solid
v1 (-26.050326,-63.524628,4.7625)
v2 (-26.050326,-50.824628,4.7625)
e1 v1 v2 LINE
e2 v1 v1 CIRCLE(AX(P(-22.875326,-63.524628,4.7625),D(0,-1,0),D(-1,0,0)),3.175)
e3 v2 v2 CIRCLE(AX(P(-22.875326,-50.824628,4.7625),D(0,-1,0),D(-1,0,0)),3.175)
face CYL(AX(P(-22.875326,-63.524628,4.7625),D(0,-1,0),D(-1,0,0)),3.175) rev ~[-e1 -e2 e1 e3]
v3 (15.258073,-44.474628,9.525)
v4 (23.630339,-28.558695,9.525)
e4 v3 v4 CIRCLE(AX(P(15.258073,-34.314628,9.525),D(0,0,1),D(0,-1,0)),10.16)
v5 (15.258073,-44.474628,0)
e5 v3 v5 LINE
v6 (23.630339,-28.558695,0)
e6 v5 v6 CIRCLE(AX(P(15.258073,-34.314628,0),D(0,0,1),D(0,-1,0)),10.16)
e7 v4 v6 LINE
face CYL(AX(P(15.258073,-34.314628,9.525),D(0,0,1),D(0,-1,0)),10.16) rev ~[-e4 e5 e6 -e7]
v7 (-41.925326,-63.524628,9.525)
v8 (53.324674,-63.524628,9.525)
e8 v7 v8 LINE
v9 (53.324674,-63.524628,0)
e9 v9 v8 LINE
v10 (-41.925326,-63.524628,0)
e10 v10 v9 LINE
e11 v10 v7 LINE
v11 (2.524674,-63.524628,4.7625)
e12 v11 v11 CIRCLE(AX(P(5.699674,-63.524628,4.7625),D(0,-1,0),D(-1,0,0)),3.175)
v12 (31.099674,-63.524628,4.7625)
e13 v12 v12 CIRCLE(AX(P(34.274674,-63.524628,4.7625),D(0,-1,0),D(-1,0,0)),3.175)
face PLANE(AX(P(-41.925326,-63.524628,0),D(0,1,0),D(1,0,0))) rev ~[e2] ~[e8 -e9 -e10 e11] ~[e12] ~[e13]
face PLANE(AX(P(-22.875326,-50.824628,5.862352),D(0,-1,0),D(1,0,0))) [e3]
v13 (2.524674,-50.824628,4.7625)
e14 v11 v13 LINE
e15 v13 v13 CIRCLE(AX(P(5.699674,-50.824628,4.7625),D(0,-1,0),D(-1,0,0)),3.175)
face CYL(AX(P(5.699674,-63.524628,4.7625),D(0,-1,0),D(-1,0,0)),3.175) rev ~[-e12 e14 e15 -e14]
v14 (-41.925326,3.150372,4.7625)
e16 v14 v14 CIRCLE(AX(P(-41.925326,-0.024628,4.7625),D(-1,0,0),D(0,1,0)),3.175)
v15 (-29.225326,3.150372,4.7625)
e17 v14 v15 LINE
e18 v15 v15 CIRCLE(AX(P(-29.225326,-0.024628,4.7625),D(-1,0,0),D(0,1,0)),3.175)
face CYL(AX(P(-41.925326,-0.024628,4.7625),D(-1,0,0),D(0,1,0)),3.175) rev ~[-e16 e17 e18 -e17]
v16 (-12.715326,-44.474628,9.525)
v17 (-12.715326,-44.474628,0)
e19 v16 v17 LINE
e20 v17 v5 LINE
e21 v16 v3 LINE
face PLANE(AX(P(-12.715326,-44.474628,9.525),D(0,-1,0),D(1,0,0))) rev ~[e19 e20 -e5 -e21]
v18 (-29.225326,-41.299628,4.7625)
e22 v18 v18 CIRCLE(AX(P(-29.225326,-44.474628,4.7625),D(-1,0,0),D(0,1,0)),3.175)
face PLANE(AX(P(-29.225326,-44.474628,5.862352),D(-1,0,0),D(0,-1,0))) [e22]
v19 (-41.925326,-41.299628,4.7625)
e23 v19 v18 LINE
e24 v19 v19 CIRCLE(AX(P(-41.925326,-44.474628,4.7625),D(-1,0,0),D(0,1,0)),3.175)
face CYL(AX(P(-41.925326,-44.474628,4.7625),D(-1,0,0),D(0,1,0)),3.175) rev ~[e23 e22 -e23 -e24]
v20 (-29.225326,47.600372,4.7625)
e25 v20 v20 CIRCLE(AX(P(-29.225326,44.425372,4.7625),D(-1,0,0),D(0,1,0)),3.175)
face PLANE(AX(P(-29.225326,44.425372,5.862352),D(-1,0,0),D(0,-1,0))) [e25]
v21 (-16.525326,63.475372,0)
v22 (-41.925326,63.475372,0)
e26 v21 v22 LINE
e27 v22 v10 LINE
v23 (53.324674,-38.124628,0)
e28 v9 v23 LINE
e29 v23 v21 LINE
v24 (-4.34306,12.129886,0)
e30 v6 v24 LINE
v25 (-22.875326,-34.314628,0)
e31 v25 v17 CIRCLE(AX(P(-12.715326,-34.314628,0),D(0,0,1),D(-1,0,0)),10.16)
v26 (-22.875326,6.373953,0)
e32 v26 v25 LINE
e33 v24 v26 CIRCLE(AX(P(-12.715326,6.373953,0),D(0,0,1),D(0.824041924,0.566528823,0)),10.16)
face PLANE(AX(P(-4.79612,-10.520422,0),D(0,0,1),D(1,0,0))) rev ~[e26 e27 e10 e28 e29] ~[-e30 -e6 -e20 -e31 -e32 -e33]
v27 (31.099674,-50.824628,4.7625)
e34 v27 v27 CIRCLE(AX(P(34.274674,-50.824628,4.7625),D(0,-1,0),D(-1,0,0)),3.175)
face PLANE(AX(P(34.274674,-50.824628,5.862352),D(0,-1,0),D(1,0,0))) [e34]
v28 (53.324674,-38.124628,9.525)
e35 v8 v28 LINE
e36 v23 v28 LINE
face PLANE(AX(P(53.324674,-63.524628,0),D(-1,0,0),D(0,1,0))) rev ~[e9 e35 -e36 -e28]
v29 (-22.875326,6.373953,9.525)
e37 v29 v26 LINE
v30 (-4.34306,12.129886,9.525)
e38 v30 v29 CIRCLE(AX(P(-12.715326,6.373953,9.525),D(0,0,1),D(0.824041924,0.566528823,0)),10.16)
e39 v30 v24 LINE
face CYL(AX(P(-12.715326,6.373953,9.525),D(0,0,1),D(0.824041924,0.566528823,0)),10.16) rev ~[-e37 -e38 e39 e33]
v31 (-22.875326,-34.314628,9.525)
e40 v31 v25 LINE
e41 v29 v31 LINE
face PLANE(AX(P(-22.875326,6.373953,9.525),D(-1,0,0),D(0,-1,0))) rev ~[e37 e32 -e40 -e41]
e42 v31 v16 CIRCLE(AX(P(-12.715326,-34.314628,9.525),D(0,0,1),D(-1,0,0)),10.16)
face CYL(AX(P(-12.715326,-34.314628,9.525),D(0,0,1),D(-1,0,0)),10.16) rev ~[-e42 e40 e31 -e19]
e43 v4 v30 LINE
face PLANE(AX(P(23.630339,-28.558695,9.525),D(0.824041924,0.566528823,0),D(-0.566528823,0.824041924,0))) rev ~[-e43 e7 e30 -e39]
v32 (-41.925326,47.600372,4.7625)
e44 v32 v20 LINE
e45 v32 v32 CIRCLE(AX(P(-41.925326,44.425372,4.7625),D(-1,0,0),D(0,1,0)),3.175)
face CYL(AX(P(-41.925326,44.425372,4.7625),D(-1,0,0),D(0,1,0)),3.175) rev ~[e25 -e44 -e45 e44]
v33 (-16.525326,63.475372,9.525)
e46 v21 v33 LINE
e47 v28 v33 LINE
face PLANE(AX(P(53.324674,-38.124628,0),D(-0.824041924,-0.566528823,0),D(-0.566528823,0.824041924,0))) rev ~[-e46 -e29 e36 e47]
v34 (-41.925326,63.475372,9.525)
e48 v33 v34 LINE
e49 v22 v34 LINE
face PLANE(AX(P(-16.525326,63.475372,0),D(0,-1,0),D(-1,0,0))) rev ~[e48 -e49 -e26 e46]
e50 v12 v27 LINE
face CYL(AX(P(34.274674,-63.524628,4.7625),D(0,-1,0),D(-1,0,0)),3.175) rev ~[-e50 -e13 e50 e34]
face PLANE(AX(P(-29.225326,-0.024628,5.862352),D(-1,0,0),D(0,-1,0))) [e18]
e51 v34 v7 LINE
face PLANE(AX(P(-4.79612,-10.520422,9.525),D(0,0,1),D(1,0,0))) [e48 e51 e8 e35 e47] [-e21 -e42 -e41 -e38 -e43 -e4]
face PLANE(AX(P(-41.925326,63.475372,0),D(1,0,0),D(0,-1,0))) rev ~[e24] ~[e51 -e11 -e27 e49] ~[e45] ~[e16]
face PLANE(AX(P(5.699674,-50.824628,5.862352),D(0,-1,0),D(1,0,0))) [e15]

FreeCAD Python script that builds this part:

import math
import FreeCAD as App
import Part
import Sketcher
Q = App.Units.Quantity


def add_polygon(sketch, points):
    """Adds a closed chain of lines whose ends are joined by coincident constraints."""
    first, n = sketch.GeometryCount, len(points)
    for a, b in zip(points, points[1:] + points[:1]):
        sketch.addGeometry(Part.LineSegment(App.Vector(*a, 0), App.Vector(*b, 0)), False)
    for i in range(n):
        sketch.addConstraint(Sketcher.Constraint("Coincident", first + i, 2, first + (i + 1) % n, 1))

doc = App.newDocument("Part")
body = doc.addObject("PartDesign::Body", "Body")

sketch1 = body.newObject("Sketcher::SketchObject", "Sketch")
sketch1.AttachmentSupport = (doc.getObject("XY_Plane"), [""])
sketch1.MapMode = "FlatFace"
add_polygon(sketch1, [(-16.525326, 63.475372), (-41.925326, 63.475372), (-41.925326, -63.524628), (53.324674, -63.524628), (53.324674, -38.124628)])
sketch1.addConstraint([
    Sketcher.Constraint("Horizontal", 0),
    Sketcher.Constraint("Vertical", 1),
    Sketcher.Constraint("Horizontal", 2),
    Sketcher.Constraint("Vertical", 3),
    Sketcher.Constraint("Equal", 0, 3),
    Sketcher.Constraint("DistanceX", 0, 2, 0, 1, Q("1 in")),
    Sketcher.Constraint("DistanceY", 1, 2, 1, 1, Q("5 in")),
    Sketcher.Constraint("DistanceX", 2, 1, 2, 2, Q("3.75 in")),
    Sketcher.Constraint("DistanceX", 0, 2, -1, 1, 41.925326),
    Sketcher.Constraint("DistanceY", -1, 1, 0, 2, 63.475372),
])
pad1 = body.newObject("PartDesign::Pad", "Pad")
pad1.Profile = sketch1
pad1.Length = Q("0.375 in")

sketch2 = body.newObject("Sketcher::SketchObject", "Sketch001")
sketch2.AttachmentSupport = (doc.getObject("XY_Plane"), [""])
sketch2.MapMode = "FlatFace"
sketch2.AttachmentOffset = App.Placement(App.Vector(0, 0, 0.375 * 25.4), App.Rotation())
sketch2.addGeometry([
    Part.ArcOfCircle(Part.Circle(App.Vector(-12.715326, 6.373953, 0), App.Vector(0, 0, 1), 10.16), math.radians(34.508523), math.radians(180)),
    Part.LineSegment(App.Vector(-22.875326, 6.373953, 0), App.Vector(-22.875326, -34.314628, 0)),
    Part.ArcOfCircle(Part.Circle(App.Vector(-12.715326, -34.314628, 0), App.Vector(0, 0, 1), 10.16), math.radians(180), math.radians(270)),
    Part.LineSegment(App.Vector(-12.715326, -44.474628, 0), App.Vector(15.258073, -44.474628, 0)),
    Part.ArcOfCircle(Part.Circle(App.Vector(15.258073, -34.314628, 0), App.Vector(0, 0, 1), 10.16), math.radians(-90), math.radians(34.508523)),
    Part.LineSegment(App.Vector(23.630339, -28.558695, 0), App.Vector(-4.34306, 12.129886, 0)),
], False)
sketch2.addConstraint([
    Sketcher.Constraint("Tangent", 0, 2, 1, 1),
    Sketcher.Constraint("Tangent", 1, 2, 2, 1),
    Sketcher.Constraint("Tangent", 2, 2, 3, 1),
    Sketcher.Constraint("Tangent", 3, 2, 4, 1),
    Sketcher.Constraint("Tangent", 4, 2, 5, 1),
    Sketcher.Constraint("Tangent", 5, 2, 0, 1),
    Sketcher.Constraint("Vertical", 1),
    Sketcher.Constraint("Horizontal", 3),
    Sketcher.Constraint("Equal", 0, 2),
    Sketcher.Constraint("Equal", 2, 4),
    Sketcher.Constraint("Radius", 0, Q("0.4 in")),
    Sketcher.Constraint("DistanceX", 3, 1, 3, 2, 27.973399),
    Sketcher.Constraint("DistanceY", 1, 2, 1, 1, 40.688581),
    Sketcher.Constraint("DistanceX", -1, 1, 4, 2, 23.630339),
    Sketcher.Constraint("DistanceY", -1, 1, 0, 3, 6.373953),
])
pocket1 = body.newObject("PartDesign::Pocket", "Pocket")
pocket1.Profile = sketch2
pocket1.Type = "ThroughAll"

sketch3 = body.newObject("Sketcher::SketchObject", "Sketch002")
sketch3.AttachmentSupport = (doc.getObject("YZ_Plane"), [""])
sketch3.MapMode = "FlatFace"
sketch3.AttachmentOffset = App.Placement(App.Vector(0, 0, -41.925326), App.Rotation())
sketch3.addGeometry([
    Part.Circle(App.Vector(44.425372, 4.7625, 0), App.Vector(0, 0, 1), 3.175),
    Part.Circle(App.Vector(-44.474628, 4.7625, 0), App.Vector(0, 0, 1), 3.175),
    Part.Circle(App.Vector(-0.024628, 4.7625, 0), App.Vector(0, 0, 1), 3.175),
], False)
sketch3.addConstraint([
    Sketcher.Constraint("Equal", 0, 1),
    Sketcher.Constraint("Equal", 1, 2),
    Sketcher.Constraint("Horizontal", 0, 3, 1, 3),
    Sketcher.Constraint("Horizontal", 1, 3, 2, 3),
    Sketcher.Constraint("Diameter", 0, Q("0.25 in")),
    Sketcher.Constraint("DistanceX", 1, 3, 0, 3, Q("3.5 in")),
    Sketcher.Constraint("DistanceX", 2, 3, 0, 3, Q("1.75 in")),
    Sketcher.Constraint("DistanceY", -1, 1, 0, 3, Q("0.1875 in")),
    Sketcher.Constraint("DistanceX", -1, 1, 0, 3, 44.425372),
])
pocket2 = body.newObject("PartDesign::Pocket", "Pocket001")
pocket2.Profile = sketch3
pocket2.Length = Q("0.5 in")
pocket2.Reversed = True

sketch4 = body.newObject("Sketcher::SketchObject", "Sketch003")
sketch4.AttachmentSupport = (doc.getObject("XZ_Plane"), [""])
sketch4.MapMode = "FlatFace"
sketch4.AttachmentOffset = App.Placement(App.Vector(0, 0, 63.524628), App.Rotation())
sketch4.addGeometry([
    Part.Circle(App.Vector(-22.875326, 4.7625, 0), App.Vector(0, 0, 1), 3.175),
    Part.Circle(App.Vector(34.274674, 4.7625, 0), App.Vector(0, 0, 1), 3.175),
    Part.Circle(App.Vector(5.699674, 4.7625, 0), App.Vector(0, 0, 1), 3.175),
], False)
sketch4.addConstraint([
    Sketcher.Constraint("Equal", 0, 1),
    Sketcher.Constraint("Equal", 1, 2),
    Sketcher.Constraint("Horizontal", 0, 3, 1, 3),
    Sketcher.Constraint("Horizontal", 1, 3, 2, 3),
    Sketcher.Constraint("Diameter", 0, Q("0.25 in")),
    Sketcher.Constraint("DistanceX", 0, 3, 1, 3, Q("2.25 in")),
    Sketcher.Constraint("DistanceY", -1, 1, 0, 3, Q("0.1875 in")),
    Sketcher.Constraint("DistanceX", 0, 3, 2, 3, Q("1.125 in")),
    Sketcher.Constraint("DistanceX", 0, 3, -1, 1, 22.875326),
])
pocket3 = body.newObject("PartDesign::Pocket", "Pocket002")
pocket3.Profile = sketch4
pocket3.Length = Q("0.5 in")

sketch5 = body.newObject("Sketcher::SketchObject", "Sketch004")
sketch5.AttachmentSupport = (doc.getObject("XZ_Plane"), [""])
sketch5.MapMode = "FlatFace"
sketch5.AttachmentOffset = App.Placement(App.Vector(0, 0, 63.524628), App.Rotation())
sketch5.addGeometry([
    Part.Circle(App.Vector(-22.875326, 4.7625, 0), App.Vector(0, 0, 1), 3.175),
    Part.Circle(App.Vector(34.274674, 4.7625, 0), App.Vector(0, 0, 1), 3.175),
    Part.Circle(App.Vector(5.699674, 4.7625, 0), App.Vector(0, 0, 1), 3.175),
], False)
sketch5.addConstraint([
    Sketcher.Constraint("Equal", 0, 1),
    Sketcher.Constraint("Equal", 1, 2),
    Sketcher.Constraint("Horizontal", 0, 3, 1, 3),
    Sketcher.Constraint("Horizontal", 1, 3, 2, 3),
    Sketcher.Constraint("Diameter", 0, Q("0.25 in")),
    Sketcher.Constraint("DistanceX", 0, 3, 1, 3, Q("2.25 in")),
    Sketcher.Constraint("DistanceY", -1, 1, 0, 3, Q("0.1875 in")),
    Sketcher.Constraint("DistanceX", 0, 3, 2, 3, Q("1.125 in")),
    Sketcher.Constraint("DistanceX", 0, 3, -1, 1, 22.875326),
])
pocket4 = body.newObject("PartDesign::Pocket", "Pocket003")
pocket4.Profile = sketch5
pocket4.Length = Q("0.5 in")

doc.recompute()
